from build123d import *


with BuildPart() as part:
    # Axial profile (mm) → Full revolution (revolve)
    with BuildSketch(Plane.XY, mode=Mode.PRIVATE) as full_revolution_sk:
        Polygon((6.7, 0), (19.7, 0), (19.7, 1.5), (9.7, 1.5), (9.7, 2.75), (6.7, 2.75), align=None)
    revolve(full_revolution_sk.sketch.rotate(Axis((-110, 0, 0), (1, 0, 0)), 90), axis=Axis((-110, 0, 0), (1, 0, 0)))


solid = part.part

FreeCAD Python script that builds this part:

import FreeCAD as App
import Part
import Sketcher

doc = App.newDocument("Part")
body = doc.addObject("PartDesign::Body", "Body")

sketch1 = body.newObject("Sketcher::SketchObject", "Sketch")
sketch1.AttachmentSupport = (doc.getObject("XY_Plane"), [""])
sketch1.MapMode = "FlatFace"
sketch1.addGeometry(Part.LineSegment(App.Vector(6.7, 0, 0), App.Vector(19.7, 0, 0)), False)
sketch1.addGeometry(Part.LineSegment(App.Vector(19.7, 0, 0), App.Vector(19.7, 1.5, 0)), False)
sketch1.addGeometry(Part.LineSegment(App.Vector(19.7, 1.5, 0), App.Vector(9.7, 1.5, 0)), False)
sketch1.addGeometry(Part.LineSegment(App.Vector(9.7, 1.5, 0), App.Vector(9.7, 2.8, 0)), False)
sketch1.addGeometry(Part.LineSegment(App.Vector(9.7, 2.8, 0), App.Vector(6.7, 2.8, 0)), False)
sketch1.addGeometry(Part.LineSegment(App.Vector(6.7, 2.8, 0), App.Vector(6.7, 0, 0)), False)
sketch1.addConstraint(Sketcher.Constraint("Coincident", 0, 2, 1, 1))
sketch1.addConstraint(Sketcher.Constraint("Coincident", 1, 2, 2, 1))
sketch1.addConstraint(Sketcher.Constraint("Coincident", 2, 2, 3, 1))
sketch1.addConstraint(Sketcher.Constraint("Coincident", 3, 2, 4, 1))
sketch1.addConstraint(Sketcher.Constraint("Coincident", 4, 2, 5, 1))
sketch1.addConstraint(Sketcher.Constraint("Coincident", 5, 2, 0, 1))
sketch1.addConstraint(Sketcher.Constraint("Horizontal", 0))
sketch1.addConstraint(Sketcher.Constraint("Vertical", 1))
sketch1.addConstraint(Sketcher.Constraint("Horizontal", 2))
sketch1.addConstraint(Sketcher.Constraint("Vertical", 3))
sketch1.addConstraint(Sketcher.Constraint("Horizontal", 4))
sketch1.addConstraint(Sketcher.Constraint("Vertical", 5))
sketch1.addConstraint(Sketcher.Constraint("PointOnObject", 0, 2, -1))
sketch1.addConstraint(Sketcher.Constraint("DistanceX", 0, 1, 0, 2, 13.0))
sketch1.addConstraint(Sketcher.Constraint("DistanceX", 2, 2, 2, 1, 10.0))
sketch1.addConstraint(Sketcher.Constraint("DistanceY", 1, 1, 1, 2, 1.5))
sketch1.addConstraint(Sketcher.Constraint("DistanceY", 3, 1, 3, 2, 1.25))
sketch1.addConstraint(Sketcher.Constraint("DistanceX", -1, 1, 0, 2, 19.7))
revolution = body.newObject("PartDesign::Revolution", "Revolution")
revolution.Profile = sketch1
revolution.ReferenceAxis = (sketch1, ["H_Axis"])
revolution.Angle = 360

doc.recompute()
